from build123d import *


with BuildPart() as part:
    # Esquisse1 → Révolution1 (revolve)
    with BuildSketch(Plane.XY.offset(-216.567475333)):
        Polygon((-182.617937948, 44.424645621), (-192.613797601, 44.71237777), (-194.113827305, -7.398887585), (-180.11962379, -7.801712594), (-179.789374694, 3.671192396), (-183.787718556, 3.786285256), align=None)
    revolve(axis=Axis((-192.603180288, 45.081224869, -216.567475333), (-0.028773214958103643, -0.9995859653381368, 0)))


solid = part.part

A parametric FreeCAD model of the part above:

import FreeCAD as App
import Part
import Sketcher
from FreeCAD import Vector

doc = App.newDocument("Part")
body = doc.addObject("PartDesign::Body", "Body")

# Sketch on XY plane
sketch1 = body.newObject("Sketcher::SketchObject", "Sketch")
sketch1.AttachmentSupport = (doc.getObject("XY_Plane"), [""])
sketch1.MapMode = "FlatFace"
sketch1.AttachmentOffset = App.Placement(Vector(0, 0, -216.567475), App.Rotation())
sketch1.addGeometry(Part.LineSegment(Vector(-182.6, 44.4, 0), Vector(-192.6, 44.7, 0)), False)
sketch1.addGeometry(Part.LineSegment(Vector(-192.6, 44.7, 0), Vector(-194.1, -7.4, 0)), False)
sketch1.addGeometry(Part.LineSegment(Vector(-194.1, -7.4, 0), Vector(-180.1, -7.8, 0)), False)
sketch1.addGeometry(Part.LineSegment(Vector(-180.1, -7.8, 0), Vector(-179.8, 3.7, 0)), False)
sketch1.addGeometry(Part.LineSegment(Vector(-179.8, 3.7, 0), Vector(-183.8, 3.8, 0)), False)
sketch1.addGeometry(Part.LineSegment(Vector(-183.8, 3.8, 0), Vector(-182.6, 44.4, 0)), False)
sketch1.addGeometry(Part.LineSegment(Vector(-192.6, 44.7, 0), Vector(-194.1, -7.4, 0)), True)  # axis
sketch1.addConstraint(Sketcher.Constraint("Coincident", 0, 2, 1, 1))
sketch1.addConstraint(Sketcher.Constraint("Coincident", 1, 2, 2, 1))
sketch1.addConstraint(Sketcher.Constraint("Coincident", 2, 2, 3, 1))
sketch1.addConstraint(Sketcher.Constraint("Coincident", 3, 2, 4, 1))
sketch1.addConstraint(Sketcher.Constraint("Coincident", 4, 2, 5, 1))
sketch1.addConstraint(Sketcher.Constraint("Coincident", 5, 2, 0, 1))
sketch1.addConstraint(Sketcher.Constraint("Coincident", 6, 1, 0, 2))
sketch1.addConstraint(Sketcher.Constraint("Coincident", 6, 2, 1, 2))
sketch1.addConstraint(Sketcher.Constraint("Perpendicular", 0, 1))
sketch1.addConstraint(Sketcher.Constraint("Perpendicular", 1, 2))
sketch1.addConstraint(Sketcher.Constraint("Perpendicular", 2, 3))
sketch1.addConstraint(Sketcher.Constraint("Perpendicular", 3, 4))
sketch1.addConstraint(Sketcher.Constraint("Perpendicular", 4, 5))
sketch1.addConstraint(Sketcher.Constraint("Distance", 0, 10.0))
sketch1.addConstraint(Sketcher.Constraint("Distance", 2, 14.0))
sketch1.addConstraint(Sketcher.Constraint("Distance", 1, 52.13285))
sketch1.addConstraint(Sketcher.Constraint("DistanceX", 4, 2, -1, 1, 183.787719))
sketch1.addConstraint(Sketcher.Constraint("DistanceX", 1, 2, 0, 2, 1.50003))
sketch1.addConstraint(Sketcher.Constraint("DistanceX", 2, 2, 3, 2, 0.330249))
sketch1.addConstraint(Sketcher.Constraint("DistanceY", -1, 1, 0, 2, 44.712378))
revolution = body.newObject("PartDesign::Revolution", "Revolution")
revolution.Profile = sketch1
revolution.ReferenceAxis = (sketch1, ["Axis0"])
revolution.Angle = 360

doc.recompute()
